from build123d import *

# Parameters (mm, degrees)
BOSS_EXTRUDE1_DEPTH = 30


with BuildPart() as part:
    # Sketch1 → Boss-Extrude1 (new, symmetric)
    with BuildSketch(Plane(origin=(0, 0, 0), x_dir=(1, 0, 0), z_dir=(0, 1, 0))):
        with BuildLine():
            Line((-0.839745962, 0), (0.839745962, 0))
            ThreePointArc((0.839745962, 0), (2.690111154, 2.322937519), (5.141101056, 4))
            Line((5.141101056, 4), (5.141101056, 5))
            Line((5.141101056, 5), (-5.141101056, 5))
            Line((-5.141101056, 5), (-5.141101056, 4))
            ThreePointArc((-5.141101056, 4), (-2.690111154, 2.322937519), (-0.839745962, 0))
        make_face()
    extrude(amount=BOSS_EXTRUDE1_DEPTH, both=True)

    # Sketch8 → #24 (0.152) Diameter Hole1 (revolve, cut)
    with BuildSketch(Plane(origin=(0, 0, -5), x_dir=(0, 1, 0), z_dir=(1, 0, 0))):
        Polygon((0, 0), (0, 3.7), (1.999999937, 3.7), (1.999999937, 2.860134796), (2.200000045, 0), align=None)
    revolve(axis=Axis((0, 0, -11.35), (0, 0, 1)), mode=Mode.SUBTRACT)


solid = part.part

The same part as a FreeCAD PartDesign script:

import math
import FreeCAD as App
import Part
import Sketcher
Q = App.Units.Quantity

doc = App.newDocument("Part")
body = doc.addObject("PartDesign::Body", "Body")

sketch1 = body.newObject("Sketcher::SketchObject", "Sketch")
sketch1.AttachmentSupport = (doc.getObject("XZ_Plane"), [""])
sketch1.MapMode = "FlatFace"
sketch1.addGeometry([
    Part.LineSegment(App.Vector(-0.8, 0, 0), App.Vector(0.8, 0, 0)),
    Part.ArcOfCircle(Part.Circle(App.Vector(9.5, 5, 0), App.Vector(0, 0, 1), 10), math.radians(-150), math.radians(-116)),
    Part.LineSegment(App.Vector(5.1, -4, 0), App.Vector(5.1, -5, 0)),
    Part.LineSegment(App.Vector(5.1, -5, 0), App.Vector(-5.1, -5, 0)),
    Part.LineSegment(App.Vector(-5.1, -5, 0), App.Vector(-5.1, -4, 0)),
    Part.ArcOfCircle(Part.Circle(App.Vector(-9.5, 5, 0), App.Vector(0, 0, 1), 10), math.radians(-64), math.radians(-30)),
], False)
sketch1.addConstraint([
    Sketcher.Constraint("Coincident", 0, 2, 1, 1),
    Sketcher.Constraint("Coincident", 1, 2, 2, 1),
    Sketcher.Constraint("Coincident", 2, 2, 3, 1),
    Sketcher.Constraint("Coincident", 3, 2, 4, 1),
    Sketcher.Constraint("Coincident", 4, 2, 5, 1),
    Sketcher.Constraint("Coincident", 5, 2, 0, 1),
    Sketcher.Constraint("Horizontal", 0),
    Sketcher.Constraint("Vertical", 2),
    Sketcher.Constraint("Horizontal", 3),
    Sketcher.Constraint("Vertical", 4),
    Sketcher.Constraint("Equal", 1, 5),
    Sketcher.Constraint("Symmetric", 0, 2, 5, 2, -1, 1),
    Sketcher.Constraint("Symmetric", 1, 2, 4, 2, -2),
    Sketcher.Constraint("Radius", 1, 10.0),
    Sketcher.Constraint("DistanceY", 2, 2, 2, 1, 1.0),
    Sketcher.Constraint("DistanceY", -1, 1, 1, 3, 5.0),
    Sketcher.Constraint("DistanceY", 1, 2, -1, 1, 4.0),
    Sketcher.Constraint("DistanceX", 5, 3, 1, 3, 19.0),
])
pad1 = body.newObject("PartDesign::Pad", "Pad")
pad1.Profile = sketch1
pad1.Length = 60
pad1.Midplane = True

sketch2 = body.newObject("Sketcher::SketchObject", "Sketch001")
sketch2.AttachmentSupport = (doc.getObject("YZ_Plane"), [""])
sketch2.MapMode = "FlatFace"
sketch2.addGeometry([
    Part.LineSegment(App.Vector(0, -1.3, 0), App.Vector(0, -5, 0)),
    Part.LineSegment(App.Vector(0, -5, 0), App.Vector(2.2, -5, 0)),
    Part.LineSegment(App.Vector(2.2, -5, 0), App.Vector(2, -2.1, 0)),
    Part.LineSegment(App.Vector(2, -2.1, 0), App.Vector(2, -1.3, 0)),
    Part.LineSegment(App.Vector(2, -1.3, 0), App.Vector(0, -1.3, 0)),
], False)
sketch2.addConstraint([
    Sketcher.Constraint("Coincident", 0, 2, 1, 1),
    Sketcher.Constraint("Coincident", 1, 2, 2, 1),
    Sketcher.Constraint("Coincident", 2, 2, 3, 1),
    Sketcher.Constraint("Coincident", 3, 2, 4, 1),
    Sketcher.Constraint("Coincident", 4, 2, 0, 1),
    Sketcher.Constraint("Vertical", 0),
    Sketcher.Constraint("Horizontal", 1),
    Sketcher.Constraint("Vertical", 3),
    Sketcher.Constraint("Horizontal", 4),
    Sketcher.Constraint("PointOnObject", 0, 2, -2),
    Sketcher.Constraint("DistanceX", 4, 2, 4, 1, 2.0),
    Sketcher.Constraint("Angle", 2, Q("94 deg")),
    Sketcher.Constraint("DistanceX", 1, 1, 1, 2, 2.2),
    Sketcher.Constraint("DistanceY", 0, 2, 0, 1, 3.7),
    Sketcher.Constraint("DistanceY", 0, 2, -1, 1, 5.0),
])
groove = body.newObject("PartDesign::Groove", "Groove")
groove.Profile = sketch2
groove.ReferenceAxis = (sketch2, ["V_Axis"])
groove.Angle = 360

doc.recompute()
